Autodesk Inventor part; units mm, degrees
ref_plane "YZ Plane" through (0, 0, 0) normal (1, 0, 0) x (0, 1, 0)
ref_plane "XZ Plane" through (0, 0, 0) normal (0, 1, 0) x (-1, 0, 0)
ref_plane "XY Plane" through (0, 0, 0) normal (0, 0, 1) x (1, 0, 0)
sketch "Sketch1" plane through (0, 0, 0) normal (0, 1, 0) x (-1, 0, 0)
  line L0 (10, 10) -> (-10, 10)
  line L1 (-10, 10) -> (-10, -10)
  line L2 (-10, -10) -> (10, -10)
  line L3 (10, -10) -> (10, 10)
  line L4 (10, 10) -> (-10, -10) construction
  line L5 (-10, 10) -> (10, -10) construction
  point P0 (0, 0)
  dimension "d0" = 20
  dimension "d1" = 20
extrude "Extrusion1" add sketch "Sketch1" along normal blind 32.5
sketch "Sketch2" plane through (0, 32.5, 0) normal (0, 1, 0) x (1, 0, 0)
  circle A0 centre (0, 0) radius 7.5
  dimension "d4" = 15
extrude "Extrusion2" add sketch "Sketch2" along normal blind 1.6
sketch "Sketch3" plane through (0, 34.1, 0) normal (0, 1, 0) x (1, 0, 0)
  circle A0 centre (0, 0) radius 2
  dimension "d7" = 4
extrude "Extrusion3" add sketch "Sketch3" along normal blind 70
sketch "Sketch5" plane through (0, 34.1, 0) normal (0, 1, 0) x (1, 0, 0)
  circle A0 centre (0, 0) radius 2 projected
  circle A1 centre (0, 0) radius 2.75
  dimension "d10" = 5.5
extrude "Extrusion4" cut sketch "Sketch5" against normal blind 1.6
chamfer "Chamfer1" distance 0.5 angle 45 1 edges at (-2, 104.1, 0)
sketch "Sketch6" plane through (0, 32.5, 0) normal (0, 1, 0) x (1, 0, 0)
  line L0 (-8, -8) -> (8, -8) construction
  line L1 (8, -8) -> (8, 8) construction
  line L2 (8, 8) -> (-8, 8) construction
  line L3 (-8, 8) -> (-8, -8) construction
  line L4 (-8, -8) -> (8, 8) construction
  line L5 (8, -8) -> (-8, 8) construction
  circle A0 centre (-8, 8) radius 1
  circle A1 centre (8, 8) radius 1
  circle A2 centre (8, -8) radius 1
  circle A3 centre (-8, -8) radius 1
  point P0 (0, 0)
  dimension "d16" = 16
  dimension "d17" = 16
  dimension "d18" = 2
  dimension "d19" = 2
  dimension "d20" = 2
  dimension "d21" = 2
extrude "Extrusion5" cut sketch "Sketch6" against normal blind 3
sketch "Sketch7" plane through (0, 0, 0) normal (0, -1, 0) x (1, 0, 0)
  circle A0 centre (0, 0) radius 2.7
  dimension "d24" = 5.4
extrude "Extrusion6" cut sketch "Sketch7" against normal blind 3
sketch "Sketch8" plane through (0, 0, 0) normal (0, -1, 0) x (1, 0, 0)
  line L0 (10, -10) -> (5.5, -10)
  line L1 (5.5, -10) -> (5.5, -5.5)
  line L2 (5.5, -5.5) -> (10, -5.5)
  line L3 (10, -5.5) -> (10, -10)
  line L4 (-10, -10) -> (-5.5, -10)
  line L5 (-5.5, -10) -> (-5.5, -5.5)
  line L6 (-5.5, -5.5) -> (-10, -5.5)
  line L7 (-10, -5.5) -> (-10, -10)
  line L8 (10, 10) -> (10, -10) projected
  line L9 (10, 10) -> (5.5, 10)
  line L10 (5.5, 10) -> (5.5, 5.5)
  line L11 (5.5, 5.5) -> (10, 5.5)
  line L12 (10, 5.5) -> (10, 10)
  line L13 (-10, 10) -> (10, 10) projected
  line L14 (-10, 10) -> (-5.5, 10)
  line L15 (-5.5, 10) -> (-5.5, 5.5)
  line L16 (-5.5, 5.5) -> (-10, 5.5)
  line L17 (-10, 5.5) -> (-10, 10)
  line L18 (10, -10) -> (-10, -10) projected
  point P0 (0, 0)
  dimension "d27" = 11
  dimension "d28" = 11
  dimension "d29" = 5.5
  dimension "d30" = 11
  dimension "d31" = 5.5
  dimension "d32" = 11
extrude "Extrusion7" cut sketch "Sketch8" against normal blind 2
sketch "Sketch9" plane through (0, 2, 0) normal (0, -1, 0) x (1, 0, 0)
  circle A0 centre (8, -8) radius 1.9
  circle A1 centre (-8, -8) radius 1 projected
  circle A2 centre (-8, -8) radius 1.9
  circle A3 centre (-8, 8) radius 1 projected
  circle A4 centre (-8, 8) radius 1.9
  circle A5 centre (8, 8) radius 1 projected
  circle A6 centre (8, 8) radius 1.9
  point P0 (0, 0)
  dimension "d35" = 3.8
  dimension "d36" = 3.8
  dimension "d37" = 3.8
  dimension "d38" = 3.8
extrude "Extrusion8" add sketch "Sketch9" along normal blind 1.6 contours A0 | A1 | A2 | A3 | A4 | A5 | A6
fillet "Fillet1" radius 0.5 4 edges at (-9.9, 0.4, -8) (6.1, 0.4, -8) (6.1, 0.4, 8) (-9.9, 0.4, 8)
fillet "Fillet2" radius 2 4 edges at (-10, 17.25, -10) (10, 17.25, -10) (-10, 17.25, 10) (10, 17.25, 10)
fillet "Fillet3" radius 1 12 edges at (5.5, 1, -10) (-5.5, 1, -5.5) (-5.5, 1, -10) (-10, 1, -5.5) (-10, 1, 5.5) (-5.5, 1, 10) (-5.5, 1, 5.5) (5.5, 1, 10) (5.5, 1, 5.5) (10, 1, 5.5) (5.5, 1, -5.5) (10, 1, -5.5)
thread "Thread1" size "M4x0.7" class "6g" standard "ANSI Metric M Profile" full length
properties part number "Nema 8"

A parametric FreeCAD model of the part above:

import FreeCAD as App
import Part
import Sketcher
from FreeCAD import Vector


def edges_at(feature, points):
    """Names of the edges that pass closest to the given points."""
    edges = feature.Shape.Edges
    near = lambda p: min(range(len(edges)), key=lambda i: edges[i].distToShape(Part.Vertex(*p))[0])
    return sorted({f"Edge{near(p) + 1}" for p in points})

doc = App.newDocument("Part")
body = doc.addObject("PartDesign::Body", "Body")

# Sketch on XZ plane
sketch1 = body.newObject("Sketcher::SketchObject", "Sketch")
sketch1.AttachmentSupport = (doc.getObject("XZ_Plane"), [""])
sketch1.MapMode = "FlatFace"
sketch1.addGeometry([
    Part.LineSegment(Vector(-10, -10, 0), Vector(-10, 10, 0)),
    Part.LineSegment(Vector(-10, 10, 0), Vector(10, 10, 0)),
    Part.LineSegment(Vector(10, 10, 0), Vector(10, -10, 0)),
    Part.LineSegment(Vector(10, -10, 0), Vector(-10, -10, 0)),
], False)
sketch1.addConstraint([
    Sketcher.Constraint("Coincident", 0, 2, 1, 1),
    Sketcher.Constraint("Coincident", 1, 2, 2, 1),
    Sketcher.Constraint("Coincident", 2, 2, 3, 1),
    Sketcher.Constraint("Coincident", 3, 2, 0, 1),
    Sketcher.Constraint("Vertical", 0),
    Sketcher.Constraint("Horizontal", 1),
    Sketcher.Constraint("Vertical", 2),
    Sketcher.Constraint("Horizontal", 3),
    Sketcher.Constraint("Symmetric", 0, 2, 2, 2, -1, 1),
    Sketcher.Constraint("Equal", 3, 0),
    Sketcher.Constraint("DistanceX", 1, 1, 1, 2, 20.0),
])
pad1 = body.newObject("PartDesign::Pad", "Pad")
pad1.Profile = sketch1
pad1.Length = 32.5
pad1.Reversed = True

# Sketch on XZ plane
sketch2 = body.newObject("Sketcher::SketchObject", "Sketch001")
sketch2.AttachmentSupport = (doc.getObject("XZ_Plane"), [""])
sketch2.MapMode = "FlatFace"
sketch2.AttachmentOffset = App.Placement(Vector(0, 0, -32.5), App.Rotation())
sketch2.addGeometry(Part.Circle(Vector(0, 0, 0), Vector(0, 0, 1), 8), False)
sketch2.addConstraint([
    Sketcher.Constraint("Coincident", 0, 3, -1, 1),
    Sketcher.Constraint("Diameter", 0, 15.0),
])
pad2 = body.newObject("PartDesign::Pad", "Pad001")
pad2.Profile = sketch2
pad2.Length = 1.6
pad2.Reversed = True

# Sketch on XZ plane
sketch3 = body.newObject("Sketcher::SketchObject", "Sketch002")
sketch3.AttachmentSupport = (doc.getObject("XZ_Plane"), [""])
sketch3.MapMode = "FlatFace"
sketch3.AttachmentOffset = App.Placement(Vector(0, 0, -34.1), App.Rotation())
sketch3.addGeometry(Part.Circle(Vector(0, 0, 0), Vector(0, 0, 1), 2), False)
sketch3.addConstraint([
    Sketcher.Constraint("Coincident", 0, 3, -1, 1),
    Sketcher.Constraint("Diameter", 0, 4.0),
])
pad3 = body.newObject("PartDesign::Pad", "Pad002")
pad3.Profile = sketch3
pad3.Length = 70
pad3.Reversed = True

# Sketch on XZ plane
sketch4 = body.newObject("Sketcher::SketchObject", "Sketch003")
sketch4.AttachmentSupport = (doc.getObject("XZ_Plane"), [""])
sketch4.MapMode = "FlatFace"
sketch4.AttachmentOffset = App.Placement(Vector(0, 0, -34.1), App.Rotation())
sketch4.addGeometry([
    Part.Circle(Vector(0, 0, 0), Vector(0, 0, 1), 2.8),
    Part.Circle(Vector(0, 0, 0), Vector(0, 0, 1), 2),
], False)
sketch4.addConstraint([
    Sketcher.Constraint("Coincident", 0, 3, -1, 1),
    Sketcher.Constraint("Coincident", 1, 3, -1, 1),
    Sketcher.Constraint("Diameter", 0, 5.5),
    Sketcher.Constraint("Diameter", 1, 4.0),
])
pocket1 = body.newObject("PartDesign::Pocket", "Pocket")
pocket1.Profile = sketch4
pocket1.Length = 1.6
pocket1.Reversed = True
doc.recompute()

chamfer = body.newObject("PartDesign::Chamfer", "Chamfer")
chamfer.Base = (pocket1, edges_at(pocket1, [(-2, 104.1, 0)]))
chamfer.Size = 0.5

# Sketch on XZ plane
sketch5 = body.newObject("Sketcher::SketchObject", "Sketch004")
sketch5.AttachmentSupport = (doc.getObject("XZ_Plane"), [""])
sketch5.MapMode = "FlatFace"
sketch5.AttachmentOffset = App.Placement(Vector(0, 0, -32.5), App.Rotation())
sketch5.addGeometry([
    Part.Circle(Vector(-8, -8, 0), Vector(0, 0, 1), 1),
    Part.Circle(Vector(8, -8, 0), Vector(0, 0, 1), 1),
    Part.Circle(Vector(8, 8, 0), Vector(0, 0, 1), 1),
    Part.Circle(Vector(-8, 8, 0), Vector(0, 0, 1), 1),
], False)
sketch5.addConstraint([
    Sketcher.Constraint("Equal", 0, 1),
    Sketcher.Constraint("Equal", 1, 2),
    Sketcher.Constraint("Equal", 2, 3),
    Sketcher.Constraint("Symmetric", 0, 3, 2, 3, -1, 1),
    Sketcher.Constraint("Symmetric", 1, 3, 3, 3, -1, 1),
    Sketcher.Constraint("Symmetric", 0, 3, 1, 3, -2),
    Sketcher.Constraint("Diameter", 0, 2.0),
    Sketcher.Constraint("DistanceX", 0, 3, 1, 3, 16.0),
    Sketcher.Constraint("DistanceY", 1, 3, 2, 3, 16.0),
])
pocket2 = body.newObject("PartDesign::Pocket", "Pocket001")
pocket2.Profile = sketch5
pocket2.Length = 3
pocket2.Reversed = True

# Sketch on XZ plane
sketch6 = body.newObject("Sketcher::SketchObject", "Sketch005")
sketch6.AttachmentSupport = (doc.getObject("XZ_Plane"), [""])
sketch6.MapMode = "FlatFace"
sketch6.addGeometry(Part.Circle(Vector(0, 0, 0), Vector(0, 0, 1), 2.7), False)
sketch6.addConstraint([
    Sketcher.Constraint("Coincident", 0, 3, -1, 1),
    Sketcher.Constraint("Diameter", 0, 5.4),
])
pocket3 = body.newObject("PartDesign::Pocket", "Pocket002")
pocket3.Profile = sketch6
pocket3.Length = 3

# Sketch on XZ plane
sketch7 = body.newObject("Sketcher::SketchObject", "Sketch006")
sketch7.AttachmentSupport = (doc.getObject("XZ_Plane"), [""])
sketch7.MapMode = "FlatFace"
sketch7.addGeometry([
    Part.LineSegment(Vector(-10, -10, 0), Vector(-5.5, -10, 0)),  # 0
    Part.LineSegment(Vector(-5.5, -10, 0), Vector(-5.5, -5.5, 0)),  # 1
    Part.LineSegment(Vector(-5.5, -5.5, 0), Vector(-10, -5.5, 0)),  # 2
    Part.LineSegment(Vector(-10, -5.5, 0), Vector(-10, -10, 0)),  # 3
    Part.LineSegment(Vector(-5.5, 5.5, 0), Vector(-5.5, 10, 0)),  # 4
    Part.LineSegment(Vector(-5.5, 10, 0), Vector(-10, 10, 0)),  # 5
    Part.LineSegment(Vector(-10, 10, 0), Vector(-10, 5.5, 0)),  # 6
    Part.LineSegment(Vector(-10, 5.5, 0), Vector(-5.5, 5.5, 0)),  # 7
    Part.LineSegment(Vector(5.5, 5.5, 0), Vector(10, 5.5, 0)),  # 8
    Part.LineSegment(Vector(10, 5.5, 0), Vector(10, 10, 0)),  # 9
    Part.LineSegment(Vector(10, 10, 0), Vector(5.5, 10, 0)),  # 10
    Part.LineSegment(Vector(5.5, 10, 0), Vector(5.5, 5.5, 0)),  # 11
    Part.LineSegment(Vector(5.5, -10, 0), Vector(10, -10, 0)),  # 12
    Part.LineSegment(Vector(10, -10, 0), Vector(10, -5.5, 0)),  # 13
    Part.LineSegment(Vector(10, -5.5, 0), Vector(5.5, -5.5, 0)),  # 14
    Part.LineSegment(Vector(5.5, -5.5, 0), Vector(5.5, -10, 0)),  # 15
], False)
sketch7.addConstraint([
    Sketcher.Constraint("Coincident", 0, 2, 1, 1),
    Sketcher.Constraint("Coincident", 1, 2, 2, 1),
    Sketcher.Constraint("Coincident", 2, 2, 3, 1),
    Sketcher.Constraint("Coincident", 3, 2, 0, 1),
    Sketcher.Constraint("Coincident", 4, 2, 5, 1),
    Sketcher.Constraint("Coincident", 5, 2, 6, 1),
    Sketcher.Constraint("Coincident", 6, 2, 7, 1),
    Sketcher.Constraint("Coincident", 7, 2, 4, 1),
    Sketcher.Constraint("Coincident", 8, 2, 9, 1),
    Sketcher.Constraint("Coincident", 9, 2, 10, 1),
    Sketcher.Constraint("Coincident", 10, 2, 11, 1),
    Sketcher.Constraint("Coincident", 11, 2, 8, 1),
    Sketcher.Constraint("Coincident", 12, 2, 13, 1),
    Sketcher.Constraint("Coincident", 13, 2, 14, 1),
    Sketcher.Constraint("Coincident", 14, 2, 15, 1),
    Sketcher.Constraint("Coincident", 15, 2, 12, 1),
    Sketcher.Constraint("Horizontal", 0),
    Sketcher.Constraint("Vertical", 1),
    Sketcher.Constraint("Horizontal", 2),
    Sketcher.Constraint("Vertical", 3),
    Sketcher.Constraint("Vertical", 4),
    Sketcher.Constraint("Horizontal", 5),
    Sketcher.Constraint("Vertical", 6),
    Sketcher.Constraint("Horizontal", 7),
    Sketcher.Constraint("Horizontal", 8),
    Sketcher.Constraint("Vertical", 9),
    Sketcher.Constraint("Horizontal", 10),
    Sketcher.Constraint("Vertical", 11),
    Sketcher.Constraint("Horizontal", 12),
    Sketcher.Constraint("Vertical", 13),
    Sketcher.Constraint("Horizontal", 14),
    Sketcher.Constraint("Vertical", 15),
    Sketcher.Constraint("Symmetric", 2, 2, 8, 2, -1, 1),
    Sketcher.Constraint("Symmetric", 0, 2, 10, 2, -1, 1),
    Sketcher.Constraint("Symmetric", 5, 2, 12, 2, -1, 1),
    Sketcher.Constraint("Symmetric", 7, 2, 14, 2, -1, 1),
    Sketcher.Constraint("Symmetric", 6, 2, 8, 2, -2),
    Sketcher.Constraint("Symmetric", 4, 2, 10, 2, -2),
    Sketcher.Constraint("Equal", 14, 1),
    Sketcher.Constraint("DistanceY", 2, 2, 6, 2, 11.0),
    Sketcher.Constraint("DistanceX", 4, 2, 10, 2, 11.0),
    Sketcher.Constraint("DistanceX", 0, 1, 0, 2, 4.5),
])
pocket4 = body.newObject("PartDesign::Pocket", "Pocket003")
pocket4.Profile = sketch7
pocket4.Length = 2

# Sketch on XZ plane
sketch8 = body.newObject("Sketcher::SketchObject", "Sketch007")
sketch8.AttachmentSupport = (doc.getObject("XZ_Plane"), [""])
sketch8.MapMode = "FlatFace"
sketch8.AttachmentOffset = App.Placement(Vector(0, 0, -2), App.Rotation())
sketch8.addGeometry([
    Part.Circle(Vector(8, -8, 0), Vector(0, 0, 1), 1.9),
    Part.Circle(Vector(-8, -8, 0), Vector(0, 0, 1), 1.9),
    Part.Circle(Vector(-8, 8, 0), Vector(0, 0, 1), 1.9),
    Part.Circle(Vector(8, 8, 0), Vector(0, 0, 1), 1.9),
], False)
sketch8.addConstraint([
    Sketcher.Constraint("Equal", 0, 1),
    Sketcher.Constraint("Equal", 1, 2),
    Sketcher.Constraint("Equal", 2, 3),
    Sketcher.Constraint("Symmetric", 0, 3, 2, 3, -1, 1),
    Sketcher.Constraint("Symmetric", 1, 3, 3, 3, -1, 1),
    Sketcher.Constraint("Symmetric", 0, 3, 1, 3, -2),
    Sketcher.Constraint("Diameter", 0, 3.8),
    Sketcher.Constraint("DistanceX", -1, 1, 0, 3, 8.0),
    Sketcher.Constraint("DistanceY", 0, 3, -1, 1, 8.0),
])
pad4 = body.newObject("PartDesign::Pad", "Pad003")
pad4.Profile = sketch8
pad4.Length = 1.6
doc.recompute()

fillet = body.newObject("PartDesign::Fillet", "Fillet")
fillet.Base = (pad4, edges_at(pad4, [
    (-9.9, 0.4, -8),
    (6.1, 0.4, -8),
    (6.1, 0.4, 8),
    (-9.9, 0.4, 8),
]))
fillet.Radius = 0.5
doc.recompute()

fillet2 = body.newObject("PartDesign::Fillet", "Fillet001")
fillet2.Base = (fillet, edges_at(fillet, [
    (-10, 17.25, -10),
    (10, 17.25, -10),
    (-10, 17.25, 10),
    (10, 17.25, 10),
]))
fillet2.Radius = 2
doc.recompute()

fillet3 = body.newObject("PartDesign::Fillet", "Fillet002")
fillet3.Base = (fillet2, edges_at(fillet2, [
    (5.5, 1, -10),
    (-5.5, 1, -5.5),
    (-5.5, 1, -10),
    (-10, 1, -5.5),
    (-10, 1, 5.5),
    (-5.5, 1, 10),
    (-5.5, 1, 5.5),
    (5.5, 1, 10),
    (5.5, 1, 5.5),
    (10, 1, 5.5),
    (5.5, 1, -5.5),
    (10, 1, -5.5),
]))
fillet3.Radius = 1

doc.recompute()
